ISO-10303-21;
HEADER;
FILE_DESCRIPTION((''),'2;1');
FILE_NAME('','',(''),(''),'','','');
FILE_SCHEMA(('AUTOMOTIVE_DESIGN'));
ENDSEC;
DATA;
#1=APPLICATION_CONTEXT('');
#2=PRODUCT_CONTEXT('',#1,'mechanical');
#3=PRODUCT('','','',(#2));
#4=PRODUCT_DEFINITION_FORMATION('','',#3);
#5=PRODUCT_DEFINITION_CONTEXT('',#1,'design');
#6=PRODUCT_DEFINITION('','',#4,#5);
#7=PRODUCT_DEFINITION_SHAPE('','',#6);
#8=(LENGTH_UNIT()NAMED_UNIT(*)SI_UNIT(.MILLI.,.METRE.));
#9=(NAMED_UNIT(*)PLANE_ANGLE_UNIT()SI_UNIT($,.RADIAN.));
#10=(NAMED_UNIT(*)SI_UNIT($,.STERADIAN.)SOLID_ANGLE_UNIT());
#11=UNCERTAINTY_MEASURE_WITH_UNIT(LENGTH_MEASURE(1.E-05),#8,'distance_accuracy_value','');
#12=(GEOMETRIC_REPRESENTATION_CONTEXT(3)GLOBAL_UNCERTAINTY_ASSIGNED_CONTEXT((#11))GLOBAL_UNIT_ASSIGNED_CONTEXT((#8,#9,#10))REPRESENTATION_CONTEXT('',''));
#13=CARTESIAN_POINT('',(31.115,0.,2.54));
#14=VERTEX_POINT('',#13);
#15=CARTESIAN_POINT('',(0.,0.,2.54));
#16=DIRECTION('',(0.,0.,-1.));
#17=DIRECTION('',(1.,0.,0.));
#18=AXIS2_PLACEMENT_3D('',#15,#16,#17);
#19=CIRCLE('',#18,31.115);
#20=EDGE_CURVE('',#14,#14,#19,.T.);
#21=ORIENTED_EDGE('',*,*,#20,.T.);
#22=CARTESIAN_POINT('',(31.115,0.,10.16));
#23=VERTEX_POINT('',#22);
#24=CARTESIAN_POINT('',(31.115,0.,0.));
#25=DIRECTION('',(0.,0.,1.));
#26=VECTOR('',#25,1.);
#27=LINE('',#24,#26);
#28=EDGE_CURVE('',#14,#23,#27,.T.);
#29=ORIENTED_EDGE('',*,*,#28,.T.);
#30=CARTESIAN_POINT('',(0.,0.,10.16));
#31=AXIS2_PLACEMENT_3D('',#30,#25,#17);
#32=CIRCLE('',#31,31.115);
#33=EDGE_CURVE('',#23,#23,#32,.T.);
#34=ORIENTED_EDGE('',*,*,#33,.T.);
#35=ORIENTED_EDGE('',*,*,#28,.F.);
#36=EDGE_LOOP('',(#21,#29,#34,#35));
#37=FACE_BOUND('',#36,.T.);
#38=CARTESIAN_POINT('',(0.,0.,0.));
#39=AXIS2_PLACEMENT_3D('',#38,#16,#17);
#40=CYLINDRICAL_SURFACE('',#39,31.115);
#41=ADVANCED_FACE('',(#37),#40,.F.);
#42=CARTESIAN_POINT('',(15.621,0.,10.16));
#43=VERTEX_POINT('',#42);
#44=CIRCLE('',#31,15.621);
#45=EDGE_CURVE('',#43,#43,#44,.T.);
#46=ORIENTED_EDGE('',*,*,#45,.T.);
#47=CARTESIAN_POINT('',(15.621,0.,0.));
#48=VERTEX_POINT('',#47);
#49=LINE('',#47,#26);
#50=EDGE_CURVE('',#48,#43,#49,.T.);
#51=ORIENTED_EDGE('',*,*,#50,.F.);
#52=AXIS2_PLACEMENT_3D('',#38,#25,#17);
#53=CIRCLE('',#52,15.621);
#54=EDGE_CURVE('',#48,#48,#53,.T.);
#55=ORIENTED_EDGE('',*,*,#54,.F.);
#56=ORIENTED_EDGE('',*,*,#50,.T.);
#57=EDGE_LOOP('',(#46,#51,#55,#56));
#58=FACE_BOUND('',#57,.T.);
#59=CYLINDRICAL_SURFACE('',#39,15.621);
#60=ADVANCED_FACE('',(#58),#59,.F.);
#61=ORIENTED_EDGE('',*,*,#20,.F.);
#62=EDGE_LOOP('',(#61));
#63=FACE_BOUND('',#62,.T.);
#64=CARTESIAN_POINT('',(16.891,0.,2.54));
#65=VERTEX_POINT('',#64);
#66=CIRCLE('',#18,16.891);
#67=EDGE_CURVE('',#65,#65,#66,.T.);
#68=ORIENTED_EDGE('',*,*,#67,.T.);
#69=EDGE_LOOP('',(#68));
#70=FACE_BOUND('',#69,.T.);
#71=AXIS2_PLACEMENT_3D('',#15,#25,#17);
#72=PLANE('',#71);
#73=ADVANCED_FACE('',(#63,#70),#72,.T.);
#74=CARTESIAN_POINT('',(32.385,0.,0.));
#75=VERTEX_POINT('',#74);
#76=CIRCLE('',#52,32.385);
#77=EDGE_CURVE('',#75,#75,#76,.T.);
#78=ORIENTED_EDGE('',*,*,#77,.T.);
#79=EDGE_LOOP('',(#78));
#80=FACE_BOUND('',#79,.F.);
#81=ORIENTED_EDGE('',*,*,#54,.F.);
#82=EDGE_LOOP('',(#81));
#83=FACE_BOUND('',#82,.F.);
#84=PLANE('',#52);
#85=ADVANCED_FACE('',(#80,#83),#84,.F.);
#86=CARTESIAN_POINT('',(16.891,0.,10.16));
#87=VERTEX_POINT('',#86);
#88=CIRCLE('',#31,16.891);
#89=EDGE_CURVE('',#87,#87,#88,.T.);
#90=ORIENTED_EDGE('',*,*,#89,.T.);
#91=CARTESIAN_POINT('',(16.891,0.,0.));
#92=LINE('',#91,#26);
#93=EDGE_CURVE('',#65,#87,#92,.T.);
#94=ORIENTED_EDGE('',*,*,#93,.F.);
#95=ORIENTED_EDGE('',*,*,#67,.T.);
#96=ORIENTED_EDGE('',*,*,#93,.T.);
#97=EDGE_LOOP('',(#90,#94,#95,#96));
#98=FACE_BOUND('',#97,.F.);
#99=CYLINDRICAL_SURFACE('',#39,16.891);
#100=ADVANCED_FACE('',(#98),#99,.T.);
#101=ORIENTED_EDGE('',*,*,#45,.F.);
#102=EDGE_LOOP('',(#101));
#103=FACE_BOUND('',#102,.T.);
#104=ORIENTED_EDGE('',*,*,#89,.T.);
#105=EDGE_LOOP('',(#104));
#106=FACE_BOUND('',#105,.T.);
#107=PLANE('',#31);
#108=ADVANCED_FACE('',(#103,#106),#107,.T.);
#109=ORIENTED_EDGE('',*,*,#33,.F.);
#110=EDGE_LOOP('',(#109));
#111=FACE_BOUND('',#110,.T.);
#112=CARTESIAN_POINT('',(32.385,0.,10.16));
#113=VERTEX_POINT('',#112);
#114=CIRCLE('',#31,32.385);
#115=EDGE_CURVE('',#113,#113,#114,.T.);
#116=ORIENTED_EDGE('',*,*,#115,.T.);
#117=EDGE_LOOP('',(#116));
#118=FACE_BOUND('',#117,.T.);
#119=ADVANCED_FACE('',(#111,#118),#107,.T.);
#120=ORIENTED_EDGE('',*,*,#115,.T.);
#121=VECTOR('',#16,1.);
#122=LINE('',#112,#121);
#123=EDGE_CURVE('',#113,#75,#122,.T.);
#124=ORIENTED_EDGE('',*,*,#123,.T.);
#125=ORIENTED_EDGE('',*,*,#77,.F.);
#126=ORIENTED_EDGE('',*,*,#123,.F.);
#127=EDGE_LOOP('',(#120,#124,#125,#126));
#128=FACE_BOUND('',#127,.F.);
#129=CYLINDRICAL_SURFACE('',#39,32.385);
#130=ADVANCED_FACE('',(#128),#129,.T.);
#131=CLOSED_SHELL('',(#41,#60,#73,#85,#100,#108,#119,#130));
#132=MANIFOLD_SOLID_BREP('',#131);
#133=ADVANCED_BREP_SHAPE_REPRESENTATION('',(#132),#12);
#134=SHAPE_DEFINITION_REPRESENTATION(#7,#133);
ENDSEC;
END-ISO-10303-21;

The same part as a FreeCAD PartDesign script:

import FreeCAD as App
import Part
import Sketcher
from FreeCAD import Vector
Q = App.Units.Quantity

doc = App.newDocument("Part")
body = doc.addObject("PartDesign::Body", "Body")

# Sketch on XY plane
sketch1 = body.newObject("Sketcher::SketchObject", "Sketch")
sketch1.AttachmentSupport = (doc.getObject("XY_Plane"), [""])
sketch1.MapMode = "FlatFace"
sketch1.addGeometry([
    Part.Circle(Vector(0, 0, 0), Vector(0, 0, 1), 32.385),
    Part.Circle(Vector(0, 0, 0), Vector(0, 0, 1), 15.621),
], False)
sketch1.addConstraint([
    Sketcher.Constraint("Coincident", 0, 3, -1, 1),
    Sketcher.Constraint("Coincident", 1, 3, -1, 1),
    Sketcher.Constraint("Diameter", 0, Q("2.55 in")),
    Sketcher.Constraint("Diameter", 1, Q("1.23 in")),
])
pad1 = body.newObject("PartDesign::Pad", "Pad")
pad1.Profile = sketch1
pad1.Length = Q("0.1 in")

# Sketch on XY plane
sketch2 = body.newObject("Sketcher::SketchObject", "Sketch001")
sketch2.AttachmentSupport = (doc.getObject("XY_Plane"), [""])
sketch2.MapMode = "FlatFace"
sketch2.addGeometry([
    Part.Circle(Vector(0, 0, 0), Vector(0, 0, 1), 32.385),
    Part.Circle(Vector(0, 0, 0), Vector(0, 0, 1), 31.115),
], False)
sketch2.addConstraint([
    Sketcher.Constraint("Coincident", 0, 3, -1, 1),
    Sketcher.Constraint("Coincident", 1, 3, -1, 1),
    Sketcher.Constraint("Diameter", 0, Q("2.55 in")),
    Sketcher.Constraint("Diameter", 1, Q("2.45 in")),
])
pad2 = body.newObject("PartDesign::Pad", "Pad001")
pad2.Profile = sketch2
pad2.Length = Q("0.4 in")

# Sketch on XY plane
sketch3 = body.newObject("Sketcher::SketchObject", "Sketch002")
sketch3.AttachmentSupport = (doc.getObject("XY_Plane"), [""])
sketch3.MapMode = "FlatFace"
sketch3.addGeometry([
    Part.Circle(Vector(0, 0, 0), Vector(0, 0, 1), 16.891),
    Part.Circle(Vector(0, 0, 0), Vector(0, 0, 1), 15.621),
], False)
sketch3.addConstraint([
    Sketcher.Constraint("Coincident", 0, 3, -1, 1),
    Sketcher.Constraint("Coincident", 1, 3, -1, 1),
    Sketcher.Constraint("Diameter", 0, Q("1.33 in")),
    Sketcher.Constraint("Diameter", 1, Q("1.23 in")),
])
pad3 = body.newObject("PartDesign::Pad", "Pad002")
pad3.Profile = sketch3
pad3.Length = Q("0.4 in")

doc.recompute()
